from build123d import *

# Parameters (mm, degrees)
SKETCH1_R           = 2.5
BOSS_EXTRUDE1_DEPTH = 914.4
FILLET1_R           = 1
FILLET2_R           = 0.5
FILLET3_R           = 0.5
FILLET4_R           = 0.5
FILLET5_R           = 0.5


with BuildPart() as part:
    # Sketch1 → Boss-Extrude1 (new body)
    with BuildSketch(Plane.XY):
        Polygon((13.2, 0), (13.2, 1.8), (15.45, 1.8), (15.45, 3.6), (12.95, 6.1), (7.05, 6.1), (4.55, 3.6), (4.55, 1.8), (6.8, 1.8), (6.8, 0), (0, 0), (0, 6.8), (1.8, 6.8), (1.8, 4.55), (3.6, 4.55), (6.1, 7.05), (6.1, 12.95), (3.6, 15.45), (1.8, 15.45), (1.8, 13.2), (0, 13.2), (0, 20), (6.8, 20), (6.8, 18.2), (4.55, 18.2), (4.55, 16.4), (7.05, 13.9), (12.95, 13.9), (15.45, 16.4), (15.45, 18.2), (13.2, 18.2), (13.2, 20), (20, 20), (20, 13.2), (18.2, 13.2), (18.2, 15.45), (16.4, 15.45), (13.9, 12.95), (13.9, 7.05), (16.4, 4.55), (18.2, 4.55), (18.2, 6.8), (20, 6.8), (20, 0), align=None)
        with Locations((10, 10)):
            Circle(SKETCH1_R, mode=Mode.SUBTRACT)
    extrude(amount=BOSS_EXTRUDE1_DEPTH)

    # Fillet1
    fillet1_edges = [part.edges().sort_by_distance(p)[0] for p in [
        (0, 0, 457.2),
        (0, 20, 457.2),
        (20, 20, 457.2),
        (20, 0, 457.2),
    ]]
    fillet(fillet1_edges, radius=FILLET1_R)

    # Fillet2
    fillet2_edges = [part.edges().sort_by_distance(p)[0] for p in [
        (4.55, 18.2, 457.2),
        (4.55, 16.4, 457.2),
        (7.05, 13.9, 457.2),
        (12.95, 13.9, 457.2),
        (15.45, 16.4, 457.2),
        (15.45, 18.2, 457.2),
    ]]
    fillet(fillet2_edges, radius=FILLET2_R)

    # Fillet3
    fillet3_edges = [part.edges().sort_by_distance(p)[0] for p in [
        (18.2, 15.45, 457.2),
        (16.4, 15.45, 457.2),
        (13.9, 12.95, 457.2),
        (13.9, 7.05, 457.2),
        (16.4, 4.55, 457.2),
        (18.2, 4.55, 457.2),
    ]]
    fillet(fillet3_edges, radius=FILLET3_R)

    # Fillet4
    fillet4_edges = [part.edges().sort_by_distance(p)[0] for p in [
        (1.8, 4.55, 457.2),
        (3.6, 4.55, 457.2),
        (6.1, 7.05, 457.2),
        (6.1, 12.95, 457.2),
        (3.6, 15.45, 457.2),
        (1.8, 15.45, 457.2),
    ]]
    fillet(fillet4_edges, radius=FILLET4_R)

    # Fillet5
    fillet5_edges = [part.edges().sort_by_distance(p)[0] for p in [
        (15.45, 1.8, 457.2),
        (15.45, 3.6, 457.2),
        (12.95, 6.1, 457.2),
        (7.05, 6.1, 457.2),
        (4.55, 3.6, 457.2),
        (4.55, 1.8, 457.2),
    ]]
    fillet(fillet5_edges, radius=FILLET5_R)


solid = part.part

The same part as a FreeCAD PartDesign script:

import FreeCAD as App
import Part
import Sketcher
Q = App.Units.Quantity


def edges_at(feature, points):
    """Names of the edges that pass closest to the given points."""
    edges = feature.Shape.Edges
    near = lambda p: min(range(len(edges)), key=lambda i: edges[i].distToShape(Part.Vertex(*p))[0])
    return sorted({f"Edge{near(p) + 1}" for p in points})

doc = App.newDocument("Part")
body = doc.addObject("PartDesign::Body", "Body")

sketch1 = body.newObject("Sketcher::SketchObject", "Sketch")
sketch1.AttachmentSupport = (doc.getObject("XY_Plane"), [""])
sketch1.MapMode = "FlatFace"
sketch1.addGeometry(Part.LineSegment(App.Vector(13.2, 1.8, 0), App.Vector(13.2, 0, 0)), False)
sketch1.addGeometry(Part.LineSegment(App.Vector(13.2, 0, 0), App.Vector(20, 0, 0)), False)
sketch1.addGeometry(Part.LineSegment(App.Vector(20, 0, 0), App.Vector(20, 6.8, 0)), False)
sketch1.addGeometry(Part.LineSegment(App.Vector(20, 6.8, 0), App.Vector(18.2, 6.8, 0)), False)
sketch1.addGeometry(Part.LineSegment(App.Vector(18.2, 6.8, 0), App.Vector(18.2, 4.55, 0)), False)
sketch1.addGeometry(Part.LineSegment(App.Vector(18.2, 4.55, 0), App.Vector(16.4, 4.55, 0)), False)
sketch1.addGeometry(Part.LineSegment(App.Vector(16.4, 4.55, 0), App.Vector(13.9, 7.05, 0)), False)
sketch1.addGeometry(Part.LineSegment(App.Vector(13.9, 7.05, 0), App.Vector(13.9, 12.95, 0)), False)
sketch1.addGeometry(Part.LineSegment(App.Vector(13.9, 12.95, 0), App.Vector(16.4, 15.45, 0)), False)
sketch1.addGeometry(Part.LineSegment(App.Vector(16.4, 15.45, 0), App.Vector(18.2, 15.45, 0)), False)
sketch1.addGeometry(Part.LineSegment(App.Vector(18.2, 15.45, 0), App.Vector(18.2, 13.2, 0)), False)
sketch1.addGeometry(Part.LineSegment(App.Vector(18.2, 13.2, 0), App.Vector(20, 13.2, 0)), False)
sketch1.addGeometry(Part.LineSegment(App.Vector(20, 13.2, 0), App.Vector(20, 20, 0)), False)
sketch1.addGeometry(Part.LineSegment(App.Vector(20, 20, 0), App.Vector(13.2, 20, 0)), False)
sketch1.addGeometry(Part.LineSegment(App.Vector(13.2, 20, 0), App.Vector(13.2, 18.2, 0)), False)
sketch1.addGeometry(Part.LineSegment(App.Vector(13.2, 18.2, 0), App.Vector(15.45, 18.2, 0)), False)
sketch1.addGeometry(Part.LineSegment(App.Vector(15.45, 18.2, 0), App.Vector(15.45, 16.4, 0)), False)
sketch1.addGeometry(Part.LineSegment(App.Vector(15.45, 16.4, 0), App.Vector(12.95, 13.9, 0)), False)
sketch1.addGeometry(Part.LineSegment(App.Vector(12.95, 13.9, 0), App.Vector(7.05, 13.9, 0)), False)
sketch1.addGeometry(Part.LineSegment(App.Vector(7.05, 13.9, 0), App.Vector(4.55, 16.4, 0)), False)
sketch1.addGeometry(Part.LineSegment(App.Vector(4.55, 16.4, 0), App.Vector(4.55, 18.2, 0)), False)
sketch1.addGeometry(Part.LineSegment(App.Vector(4.55, 18.2, 0), App.Vector(6.8, 18.2, 0)), False)
sketch1.addGeometry(Part.LineSegment(App.Vector(6.8, 18.2, 0), App.Vector(6.8, 20, 0)), False)
sketch1.addGeometry(Part.LineSegment(App.Vector(6.8, 20, 0), App.Vector(0, 20, 0)), False)
sketch1.addGeometry(Part.LineSegment(App.Vector(0, 20, 0), App.Vector(0, 13.2, 0)), False)
sketch1.addGeometry(Part.LineSegment(App.Vector(0, 13.2, 0), App.Vector(1.8, 13.2, 0)), False)
sketch1.addGeometry(Part.LineSegment(App.Vector(1.8, 13.2, 0), App.Vector(1.8, 15.45, 0)), False)
sketch1.addGeometry(Part.LineSegment(App.Vector(1.8, 15.45, 0), App.Vector(3.6, 15.45, 0)), False)
sketch1.addGeometry(Part.LineSegment(App.Vector(3.6, 15.45, 0), App.Vector(6.1, 12.95, 0)), False)
sketch1.addGeometry(Part.LineSegment(App.Vector(6.1, 12.95, 0), App.Vector(6.1, 7.05, 0)), False)
sketch1.addGeometry(Part.LineSegment(App.Vector(6.1, 7.05, 0), App.Vector(3.6, 4.55, 0)), False)
sketch1.addGeometry(Part.LineSegment(App.Vector(3.6, 4.55, 0), App.Vector(1.8, 4.55, 0)), False)
sketch1.addGeometry(Part.LineSegment(App.Vector(1.8, 4.55, 0), App.Vector(1.8, 6.8, 0)), False)
sketch1.addGeometry(Part.LineSegment(App.Vector(1.8, 6.8, 0), App.Vector(0, 6.8, 0)), False)
sketch1.addGeometry(Part.LineSegment(App.Vector(0, 6.8, 0), App.Vector(0, 0, 0)), False)
sketch1.addGeometry(Part.LineSegment(App.Vector(0, 0, 0), App.Vector(6.8, 0, 0)), False)
sketch1.addGeometry(Part.LineSegment(App.Vector(6.8, 0, 0), App.Vector(6.8, 1.8, 0)), False)
sketch1.addGeometry(Part.LineSegment(App.Vector(6.8, 1.8, 0), App.Vector(4.55, 1.8, 0)), False)
sketch1.addGeometry(Part.LineSegment(App.Vector(4.55, 1.8, 0), App.Vector(4.55, 3.6, 0)), False)
sketch1.addGeometry(Part.LineSegment(App.Vector(4.55, 3.6, 0), App.Vector(7.05, 6.1, 0)), False)
sketch1.addGeometry(Part.LineSegment(App.Vector(7.05, 6.1, 0), App.Vector(12.95, 6.1, 0)), False)
sketch1.addGeometry(Part.LineSegment(App.Vector(12.95, 6.1, 0), App.Vector(15.45, 3.6, 0)), False)
sketch1.addGeometry(Part.LineSegment(App.Vector(15.45, 3.6, 0), App.Vector(15.45, 1.8, 0)), False)
sketch1.addGeometry(Part.LineSegment(App.Vector(15.45, 1.8, 0), App.Vector(13.2, 1.8, 0)), False)
sketch1.addGeometry(Part.Circle(App.Vector(10, 10, 0), App.Vector(0, 0, 1), 2.5), False)
sketch1.addConstraint(Sketcher.Constraint("Coincident", 0, 2, 1, 1))
sketch1.addConstraint(Sketcher.Constraint("Coincident", 1, 2, 2, 1))
sketch1.addConstraint(Sketcher.Constraint("Coincident", 2, 2, 3, 1))
sketch1.addConstraint(Sketcher.Constraint("Coincident", 3, 2, 4, 1))
sketch1.addConstraint(Sketcher.Constraint("Coincident", 4, 2, 5, 1))
sketch1.addConstraint(Sketcher.Constraint("Coincident", 5, 2, 6, 1))
sketch1.addConstraint(Sketcher.Constraint("Coincident", 6, 2, 7, 1))
sketch1.addConstraint(Sketcher.Constraint("Coincident", 7, 2, 8, 1))
sketch1.addConstraint(Sketcher.Constraint("Coincident", 8, 2, 9, 1))
sketch1.addConstraint(Sketcher.Constraint("Coincident", 9, 2, 10, 1))
sketch1.addConstraint(Sketcher.Constraint("Coincident", 10, 2, 11, 1))
sketch1.addConstraint(Sketcher.Constraint("Coincident", 11, 2, 12, 1))
sketch1.addConstraint(Sketcher.Constraint("Coincident", 12, 2, 13, 1))
sketch1.addConstraint(Sketcher.Constraint("Coincident", 13, 2, 14, 1))
sketch1.addConstraint(Sketcher.Constraint("Coincident", 14, 2, 15, 1))
sketch1.addConstraint(Sketcher.Constraint("Coincident", 15, 2, 16, 1))
sketch1.addConstraint(Sketcher.Constraint("Coincident", 16, 2, 17, 1))
sketch1.addConstraint(Sketcher.Constraint("Coincident", 17, 2, 18, 1))
sketch1.addConstraint(Sketcher.Constraint("Coincident", 18, 2, 19, 1))
sketch1.addConstraint(Sketcher.Constraint("Coincident", 19, 2, 20, 1))
sketch1.addConstraint(Sketcher.Constraint("Coincident", 20, 2, 21, 1))
sketch1.addConstraint(Sketcher.Constraint("Coincident", 21, 2, 22, 1))
sketch1.addConstraint(Sketcher.Constraint("Coincident", 22, 2, 23, 1))
sketch1.addConstraint(Sketcher.Constraint("Coincident", 23, 2, 24, 1))
sketch1.addConstraint(Sketcher.Constraint("Coincident", 24, 2, 25, 1))
sketch1.addConstraint(Sketcher.Constraint("Coincident", 25, 2, 26, 1))
sketch1.addConstraint(Sketcher.Constraint("Coincident", 26, 2, 27, 1))
sketch1.addConstraint(Sketcher.Constraint("Coincident", 27, 2, 28, 1))
sketch1.addConstraint(Sketcher.Constraint("Coincident", 28, 2, 29, 1))
sketch1.addConstraint(Sketcher.Constraint("Coincident", 29, 2, 30, 1))
sketch1.addConstraint(Sketcher.Constraint("Coincident", 30, 2, 31, 1))
sketch1.addConstraint(Sketcher.Constraint("Coincident", 31, 2, 32, 1))
sketch1.addConstraint(Sketcher.Constraint("Coincident", 32, 2, 33, 1))
sketch1.addConstraint(Sketcher.Constraint("Coincident", 33, 2, 34, 1))
sketch1.addConstraint(Sketcher.Constraint("Coincident", 34, 2, 35, 1))
sketch1.addConstraint(Sketcher.Constraint("Coincident", 35, 2, 36, 1))
sketch1.addConstraint(Sketcher.Constraint("Coincident", 36, 2, 37, 1))
sketch1.addConstraint(Sketcher.Constraint("Coincident", 37, 2, 38, 1))
sketch1.addConstraint(Sketcher.Constraint("Coincident", 38, 2, 39, 1))
sketch1.addConstraint(Sketcher.Constraint("Coincident", 39, 2, 40, 1))
sketch1.addConstraint(Sketcher.Constraint("Coincident", 40, 2, 41, 1))
sketch1.addConstraint(Sketcher.Constraint("Coincident", 41, 2, 42, 1))
sketch1.addConstraint(Sketcher.Constraint("Coincident", 42, 2, 43, 1))
sketch1.addConstraint(Sketcher.Constraint("Coincident", 43, 2, 0, 1))
sketch1.addConstraint(Sketcher.Constraint("Vertical", 0))
sketch1.addConstraint(Sketcher.Constraint("Horizontal", 1))
sketch1.addConstraint(Sketcher.Constraint("Vertical", 2))
sketch1.addConstraint(Sketcher.Constraint("Horizontal", 3))
sketch1.addConstraint(Sketcher.Constraint("Vertical", 4))
sketch1.addConstraint(Sketcher.Constraint("Horizontal", 5))
sketch1.addConstraint(Sketcher.Constraint("Vertical", 7))
sketch1.addConstraint(Sketcher.Constraint("Horizontal", 9))
sketch1.addConstraint(Sketcher.Constraint("Vertical", 10))
sketch1.addConstraint(Sketcher.Constraint("Horizontal", 11))
sketch1.addConstraint(Sketcher.Constraint("Vertical", 12))
sketch1.addConstraint(Sketcher.Constraint("Horizontal", 13))
sketch1.addConstraint(Sketcher.Constraint("Vertical", 14))
sketch1.addConstraint(Sketcher.Constraint("Horizontal", 15))
sketch1.addConstraint(Sketcher.Constraint("Vertical", 16))
sketch1.addConstraint(Sketcher.Constraint("Horizontal", 18))
sketch1.addConstraint(Sketcher.Constraint("Vertical", 20))
sketch1.addConstraint(Sketcher.Constraint("Horizontal", 21))
sketch1.addConstraint(Sketcher.Constraint("Vertical", 22))
sketch1.addConstraint(Sketcher.Constraint("Horizontal", 23))
sketch1.addConstraint(Sketcher.Constraint("Vertical", 24))
sketch1.addConstraint(Sketcher.Constraint("Horizontal", 25))
sketch1.addConstraint(Sketcher.Constraint("Vertical", 26))
sketch1.addConstraint(Sketcher.Constraint("Horizontal", 27))
sketch1.addConstraint(Sketcher.Constraint("Vertical", 29))
sketch1.addConstraint(Sketcher.Constraint("Horizontal", 31))
sketch1.addConstraint(Sketcher.Constraint("Vertical", 32))
sketch1.addConstraint(Sketcher.Constraint("Horizontal", 33))
sketch1.addConstraint(Sketcher.Constraint("Vertical", 34))
sketch1.addConstraint(Sketcher.Constraint("Horizontal", 35))
sketch1.addConstraint(Sketcher.Constraint("Vertical", 36))
sketch1.addConstraint(Sketcher.Constraint("Horizontal", 37))
sketch1.addConstraint(Sketcher.Constraint("Vertical", 38))
sketch1.addConstraint(Sketcher.Constraint("Horizontal", 40))
sketch1.addConstraint(Sketcher.Constraint("Vertical", 42))
sketch1.addConstraint(Sketcher.Constraint("Horizontal", 43))
sketch1.addConstraint(Sketcher.Constraint("Coincident", 34, 2, -1, 1))
sketch1.addConstraint(Sketcher.Constraint("PointOnObject", 0, 2, -1))
sketch1.addConstraint(Sketcher.Constraint("PointOnObject", 23, 2, -2))
sketch1.addConstraint(Sketcher.Constraint("Perpendicular", 6, 8))
sketch1.addConstraint(Sketcher.Constraint("Parallel", 8, 17))
sketch1.addConstraint(Sketcher.Constraint("Perpendicular", 17, 19))
sketch1.addConstraint(Sketcher.Constraint("Parallel", 19, 28))
sketch1.addConstraint(Sketcher.Constraint("Perpendicular", 28, 30))
sketch1.addConstraint(Sketcher.Constraint("Parallel", 30, 39))
sketch1.addConstraint(Sketcher.Constraint("Perpendicular", 39, 41))
sketch1.addConstraint(Sketcher.Constraint("Horizontal", 16, 2, 19, 2))
sketch1.addConstraint(Sketcher.Constraint("Horizontal", 15, 2, 20, 2))
sketch1.addConstraint(Sketcher.Constraint("Horizontal", 13, 2, 22, 2))
sketch1.addConstraint(Sketcher.Constraint("Horizontal", 11, 2, 24, 2))
sketch1.addConstraint(Sketcher.Constraint("Horizontal", 9, 2, 26, 2))
sketch1.addConstraint(Sketcher.Constraint("Horizontal", 7, 2, 28, 2))
sketch1.addConstraint(Sketcher.Constraint("Horizontal", 6, 2, 29, 2))
sketch1.addConstraint(Sketcher.Constraint("Horizontal", 5, 2, 30, 2))
sketch1.addConstraint(Sketcher.Constraint("Horizontal", 3, 2, 32, 2))
sketch1.addConstraint(Sketcher.Constraint("Horizontal", 38, 2, 41, 2))
sketch1.addConstraint(Sketcher.Constraint("Horizontal", 37, 2, 42, 2))
sketch1.addConstraint(Sketcher.Constraint("Vertical", 5, 2, 8, 2))
sketch1.addConstraint(Sketcher.Constraint("Vertical", 4, 2, 9, 2))
sketch1.addConstraint(Sketcher.Constraint("Vertical", 2, 2, 11, 2))
sketch1.addConstraint(Sketcher.Constraint("Vertical", 0, 2, 13, 2))
sketch1.addConstraint(Sketcher.Constraint("Vertical", 27, 2, 30, 2))
sketch1.addConstraint(Sketcher.Constraint("Vertical", 26, 2, 31, 2))
sketch1.addConstraint(Sketcher.Constraint("Vertical", 22, 2, 35, 2))
sketch1.addConstraint(Sketcher.Constraint("Vertical", 20, 2, 37, 2))
sketch1.addConstraint(Sketcher.Constraint("Vertical", 18, 2, 39, 2))
sketch1.addConstraint(Sketcher.Constraint("Vertical", 17, 2, 40, 2))
sketch1.addConstraint(Sketcher.Constraint("Equal", 3, 5))
sketch1.addConstraint(Sketcher.Constraint("Equal", 15, 21))
sketch1.addConstraint(Sketcher.Constraint("Equal", 13, 23))
sketch1.addConstraint(Sketcher.Constraint("Equal", 11, 25))
sketch1.addConstraint(Sketcher.Constraint("Equal", 25, 27))
sketch1.addConstraint(Sketcher.Constraint("Equal", 33, 0))
sketch1.addConstraint(Sketcher.Constraint("Equal", 35, 2))
sketch1.addConstraint(Sketcher.Constraint("Equal", 43, 4))
sketch1.addConstraint(Sketcher.Constraint("Equal", 40, 7))
sketch1.addConstraint(Sketcher.Constraint("Equal", 4, 10))
sketch1.addConstraint(Sketcher.Constraint("Equal", 2, 12))
sketch1.addConstraint(Sketcher.Constraint("Equal", 0, 14))
sketch1.addConstraint(Sketcher.Constraint("Equal", 14, 16))
sketch1.addConstraint(Sketcher.Constraint("Equal", 36, 38))
sketch1.addConstraint(Sketcher.Constraint("Equal", 8, 17))
sketch1.addConstraint(Sketcher.Constraint("Diameter", 44, Q("5 mm")))
sketch1.addConstraint(Sketcher.Constraint("DistanceX", 1, 1, 1, 2, Q("6.8 mm")))
sketch1.addConstraint(Sketcher.Constraint("DistanceX", 3, 2, 3, 1, Q("1.8 mm")))
sketch1.addConstraint(Sketcher.Constraint("DistanceX", 18, 2, 18, 1, Q("5.9 mm")))
sketch1.addConstraint(Sketcher.Constraint("DistanceX", -1, 1, 44, 3, Q("10 mm")))
sketch1.addConstraint(Sketcher.Constraint("DistanceY", -1, 1, 44, 3, Q("10 mm")))
sketch1.addConstraint(Sketcher.Constraint("DistanceX", -1, 1, 1, 2, Q("20 mm")))
sketch1.addConstraint(Sketcher.Constraint("DistanceX", 15, 1, 15, 2, Q("2.25 mm")))
pad1 = body.newObject("PartDesign::Pad", "Pad")
pad1.Profile = sketch1
pad1.Length = 914.4
doc.recompute()

fillet = body.newObject("PartDesign::Fillet", "Fillet")
fillet.Base = (pad1, edges_at(pad1, [
    (0, 0, 457.2),
    (0, 20, 457.2),
    (20, 20, 457.2),
    (20, 0, 457.2),
]))
fillet.Radius = 1
doc.recompute()

fillet2 = body.newObject("PartDesign::Fillet", "Fillet001")
fillet2.Base = (fillet, edges_at(fillet, [
    (4.55, 18.2, 457.2),
    (4.55, 16.4, 457.2),
    (7.05, 13.9, 457.2),
    (12.95, 13.9, 457.2),
    (15.45, 16.4, 457.2),
    (15.45, 18.2, 457.2),
]))
fillet2.Radius = 0.5
doc.recompute()

fillet3 = body.newObject("PartDesign::Fillet", "Fillet002")
fillet3.Base = (fillet2, edges_at(fillet2, [
    (18.2, 15.45, 457.2),
    (16.4, 15.45, 457.2),
    (13.9, 12.95, 457.2),
    (13.9, 7.05, 457.2),
    (16.4, 4.55, 457.2),
    (18.2, 4.55, 457.2),
]))
fillet3.Radius = 0.5
doc.recompute()

fillet4 = body.newObject("PartDesign::Fillet", "Fillet003")
fillet4.Base = (fillet3, edges_at(fillet3, [
    (1.8, 4.55, 457.2),
    (3.6, 4.55, 457.2),
    (6.1, 7.05, 457.2),
    (6.1, 12.95, 457.2),
    (3.6, 15.45, 457.2),
    (1.8, 15.45, 457.2),
]))
fillet4.Radius = 0.5
doc.recompute()

fillet5 = body.newObject("PartDesign::Fillet", "Fillet004")
fillet5.Base = (fillet4, edges_at(fillet4, [
    (15.45, 1.8, 457.2),
    (15.45, 3.6, 457.2),
    (12.95, 6.1, 457.2),
    (7.05, 6.1, 457.2),
    (4.55, 3.6, 457.2),
    (4.55, 1.8, 457.2),
]))
fillet5.Radius = 0.5

doc.recompute()
